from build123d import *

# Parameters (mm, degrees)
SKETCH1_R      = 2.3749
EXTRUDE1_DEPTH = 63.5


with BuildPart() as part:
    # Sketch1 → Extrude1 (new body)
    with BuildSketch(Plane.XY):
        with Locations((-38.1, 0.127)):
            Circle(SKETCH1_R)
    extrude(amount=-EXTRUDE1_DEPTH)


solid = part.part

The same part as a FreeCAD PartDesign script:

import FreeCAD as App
import Part
import Sketcher

V = App.Vector
Q = App.Units.Quantity

doc = App.newDocument("Part")
body = doc.addObject("PartDesign::Body", "Body")

# Sketch on XY plane
sketch1 = body.newObject("Sketcher::SketchObject", "Sketch")
sketch1.AttachmentSupport = (doc.getObject("XY_Plane"), [""])
sketch1.MapMode = "FlatFace"
sketch1.addGeometry(Part.Circle(V(-38.1, 0.127, 0), V(0, 0, 1), 2.3749), False)
sketch1.addConstraint([
    Sketcher.Constraint("Diameter", 0, Q("0.187 in")),
    Sketcher.Constraint("DistanceX", 0, 3, -1, 1, Q("1.5 in")),
    Sketcher.Constraint("DistanceY", -1, 1, 0, 3, Q("0.005 in")),
])
pad1 = body.newObject("PartDesign::Pad", "Pad")
pad1.Profile = sketch1
pad1.Length = Q("2.5 in")
pad1.Reversed = True

doc.recompute()
